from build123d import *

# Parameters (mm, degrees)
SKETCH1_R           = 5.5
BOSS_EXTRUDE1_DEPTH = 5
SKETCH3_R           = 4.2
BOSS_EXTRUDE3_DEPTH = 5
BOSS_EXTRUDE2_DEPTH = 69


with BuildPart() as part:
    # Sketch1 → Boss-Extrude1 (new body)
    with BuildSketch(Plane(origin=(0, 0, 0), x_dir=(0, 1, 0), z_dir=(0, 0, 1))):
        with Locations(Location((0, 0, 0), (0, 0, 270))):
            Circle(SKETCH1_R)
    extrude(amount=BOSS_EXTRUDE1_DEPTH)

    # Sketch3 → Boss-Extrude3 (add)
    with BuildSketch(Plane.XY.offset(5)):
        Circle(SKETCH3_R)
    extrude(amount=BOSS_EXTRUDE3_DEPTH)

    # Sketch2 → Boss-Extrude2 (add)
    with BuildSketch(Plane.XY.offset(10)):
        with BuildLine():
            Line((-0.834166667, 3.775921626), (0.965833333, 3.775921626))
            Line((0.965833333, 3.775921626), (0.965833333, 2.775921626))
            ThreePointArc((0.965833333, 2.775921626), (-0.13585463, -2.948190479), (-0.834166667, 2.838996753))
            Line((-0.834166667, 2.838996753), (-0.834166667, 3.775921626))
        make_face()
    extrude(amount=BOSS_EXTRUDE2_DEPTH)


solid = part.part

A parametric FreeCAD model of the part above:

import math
import FreeCAD as App
import Part
import Sketcher
from FreeCAD import Vector

doc = App.newDocument("Part")
body = doc.addObject("PartDesign::Body", "Body")

sketch1 = body.newObject("Sketcher::SketchObject", "Sketch")
sketch1.AttachmentSupport = (doc.getObject("XY_Plane"), [""])
sketch1.MapMode = "FlatFace"
sketch1.addGeometry(Part.Circle(Vector(0, 0, 0), Vector(0, 0, 1), 6), False)
sketch1.addConstraint(Sketcher.Constraint("Coincident", 0, 3, -1, 1))
sketch1.addConstraint(Sketcher.Constraint("Diameter", 0, 11.0))
pad1 = body.newObject("PartDesign::Pad", "Pad")
pad1.Profile = sketch1
pad1.Length = 5

sketch2 = body.newObject("Sketcher::SketchObject", "Sketch001")
sketch2.AttachmentSupport = (doc.getObject("XY_Plane"), [""])
sketch2.MapMode = "FlatFace"
sketch2.AttachmentOffset = App.Placement(Vector(0, 0, 5), App.Rotation())
sketch2.addGeometry(Part.Circle(Vector(0, 0, 0), Vector(0, 0, 1), 4.2), False)
sketch2.addConstraint(Sketcher.Constraint("Coincident", 0, 3, -1, 1))
sketch2.addConstraint(Sketcher.Constraint("Diameter", 0, 8.4))
pad2 = body.newObject("PartDesign::Pad", "Pad001")
pad2.Profile = sketch2
pad2.Length = 5

sketch3 = body.newObject("Sketcher::SketchObject", "Sketch002")
sketch3.AttachmentSupport = (doc.getObject("XY_Plane"), [""])
sketch3.MapMode = "FlatFace"
sketch3.AttachmentOffset = App.Placement(Vector(0, 0, 10), App.Rotation())
sketch3.addGeometry(Part.LineSegment(Vector(1, 3.8, 0), Vector(-0.8, 3.8, 0)), False)
sketch3.addGeometry(Part.LineSegment(Vector(-0.8, 3.8, 0), Vector(-0.8, 2.8, 0)), False)
sketch3.addGeometry(Part.ArcOfCircle(Part.Circle(Vector(0, 0, 0), Vector(0, 0, 1), 3), math.radians(106), math.radians(430)), False)
sketch3.addGeometry(Part.LineSegment(Vector(1, 2.8, 0), Vector(1, 3.8, 0)), False)
sketch3.addConstraint(Sketcher.Constraint("Coincident", 0, 2, 1, 1))
sketch3.addConstraint(Sketcher.Constraint("Coincident", 1, 2, 2, 1))
sketch3.addConstraint(Sketcher.Constraint("Coincident", 2, 2, 3, 1))
sketch3.addConstraint(Sketcher.Constraint("Coincident", 3, 2, 0, 1))
sketch3.addConstraint(Sketcher.Constraint("Horizontal", 0))
sketch3.addConstraint(Sketcher.Constraint("Vertical", 1))
sketch3.addConstraint(Sketcher.Constraint("Vertical", 3))
sketch3.addConstraint(Sketcher.Constraint("PointOnObject", 2, 3, -1))
sketch3.addConstraint(Sketcher.Constraint("DistanceY", 3, 1, 3, 2, 1.0))
sketch3.addConstraint(Sketcher.Constraint("Radius", 2, 2.95))
sketch3.addConstraint(Sketcher.Constraint("DistanceX", 0, 2, 0, 1, 1.8))
sketch3.addConstraint(Sketcher.Constraint("DistanceY", 1, 2, 1, 1, 0.936925))
sketch3.addConstraint(Sketcher.Constraint("DistanceX", 2, 3, -1, 1, 0.032545))
pad3 = body.newObject("PartDesign::Pad", "Pad002")
pad3.Profile = sketch3
pad3.Length = 69

doc.recompute()
